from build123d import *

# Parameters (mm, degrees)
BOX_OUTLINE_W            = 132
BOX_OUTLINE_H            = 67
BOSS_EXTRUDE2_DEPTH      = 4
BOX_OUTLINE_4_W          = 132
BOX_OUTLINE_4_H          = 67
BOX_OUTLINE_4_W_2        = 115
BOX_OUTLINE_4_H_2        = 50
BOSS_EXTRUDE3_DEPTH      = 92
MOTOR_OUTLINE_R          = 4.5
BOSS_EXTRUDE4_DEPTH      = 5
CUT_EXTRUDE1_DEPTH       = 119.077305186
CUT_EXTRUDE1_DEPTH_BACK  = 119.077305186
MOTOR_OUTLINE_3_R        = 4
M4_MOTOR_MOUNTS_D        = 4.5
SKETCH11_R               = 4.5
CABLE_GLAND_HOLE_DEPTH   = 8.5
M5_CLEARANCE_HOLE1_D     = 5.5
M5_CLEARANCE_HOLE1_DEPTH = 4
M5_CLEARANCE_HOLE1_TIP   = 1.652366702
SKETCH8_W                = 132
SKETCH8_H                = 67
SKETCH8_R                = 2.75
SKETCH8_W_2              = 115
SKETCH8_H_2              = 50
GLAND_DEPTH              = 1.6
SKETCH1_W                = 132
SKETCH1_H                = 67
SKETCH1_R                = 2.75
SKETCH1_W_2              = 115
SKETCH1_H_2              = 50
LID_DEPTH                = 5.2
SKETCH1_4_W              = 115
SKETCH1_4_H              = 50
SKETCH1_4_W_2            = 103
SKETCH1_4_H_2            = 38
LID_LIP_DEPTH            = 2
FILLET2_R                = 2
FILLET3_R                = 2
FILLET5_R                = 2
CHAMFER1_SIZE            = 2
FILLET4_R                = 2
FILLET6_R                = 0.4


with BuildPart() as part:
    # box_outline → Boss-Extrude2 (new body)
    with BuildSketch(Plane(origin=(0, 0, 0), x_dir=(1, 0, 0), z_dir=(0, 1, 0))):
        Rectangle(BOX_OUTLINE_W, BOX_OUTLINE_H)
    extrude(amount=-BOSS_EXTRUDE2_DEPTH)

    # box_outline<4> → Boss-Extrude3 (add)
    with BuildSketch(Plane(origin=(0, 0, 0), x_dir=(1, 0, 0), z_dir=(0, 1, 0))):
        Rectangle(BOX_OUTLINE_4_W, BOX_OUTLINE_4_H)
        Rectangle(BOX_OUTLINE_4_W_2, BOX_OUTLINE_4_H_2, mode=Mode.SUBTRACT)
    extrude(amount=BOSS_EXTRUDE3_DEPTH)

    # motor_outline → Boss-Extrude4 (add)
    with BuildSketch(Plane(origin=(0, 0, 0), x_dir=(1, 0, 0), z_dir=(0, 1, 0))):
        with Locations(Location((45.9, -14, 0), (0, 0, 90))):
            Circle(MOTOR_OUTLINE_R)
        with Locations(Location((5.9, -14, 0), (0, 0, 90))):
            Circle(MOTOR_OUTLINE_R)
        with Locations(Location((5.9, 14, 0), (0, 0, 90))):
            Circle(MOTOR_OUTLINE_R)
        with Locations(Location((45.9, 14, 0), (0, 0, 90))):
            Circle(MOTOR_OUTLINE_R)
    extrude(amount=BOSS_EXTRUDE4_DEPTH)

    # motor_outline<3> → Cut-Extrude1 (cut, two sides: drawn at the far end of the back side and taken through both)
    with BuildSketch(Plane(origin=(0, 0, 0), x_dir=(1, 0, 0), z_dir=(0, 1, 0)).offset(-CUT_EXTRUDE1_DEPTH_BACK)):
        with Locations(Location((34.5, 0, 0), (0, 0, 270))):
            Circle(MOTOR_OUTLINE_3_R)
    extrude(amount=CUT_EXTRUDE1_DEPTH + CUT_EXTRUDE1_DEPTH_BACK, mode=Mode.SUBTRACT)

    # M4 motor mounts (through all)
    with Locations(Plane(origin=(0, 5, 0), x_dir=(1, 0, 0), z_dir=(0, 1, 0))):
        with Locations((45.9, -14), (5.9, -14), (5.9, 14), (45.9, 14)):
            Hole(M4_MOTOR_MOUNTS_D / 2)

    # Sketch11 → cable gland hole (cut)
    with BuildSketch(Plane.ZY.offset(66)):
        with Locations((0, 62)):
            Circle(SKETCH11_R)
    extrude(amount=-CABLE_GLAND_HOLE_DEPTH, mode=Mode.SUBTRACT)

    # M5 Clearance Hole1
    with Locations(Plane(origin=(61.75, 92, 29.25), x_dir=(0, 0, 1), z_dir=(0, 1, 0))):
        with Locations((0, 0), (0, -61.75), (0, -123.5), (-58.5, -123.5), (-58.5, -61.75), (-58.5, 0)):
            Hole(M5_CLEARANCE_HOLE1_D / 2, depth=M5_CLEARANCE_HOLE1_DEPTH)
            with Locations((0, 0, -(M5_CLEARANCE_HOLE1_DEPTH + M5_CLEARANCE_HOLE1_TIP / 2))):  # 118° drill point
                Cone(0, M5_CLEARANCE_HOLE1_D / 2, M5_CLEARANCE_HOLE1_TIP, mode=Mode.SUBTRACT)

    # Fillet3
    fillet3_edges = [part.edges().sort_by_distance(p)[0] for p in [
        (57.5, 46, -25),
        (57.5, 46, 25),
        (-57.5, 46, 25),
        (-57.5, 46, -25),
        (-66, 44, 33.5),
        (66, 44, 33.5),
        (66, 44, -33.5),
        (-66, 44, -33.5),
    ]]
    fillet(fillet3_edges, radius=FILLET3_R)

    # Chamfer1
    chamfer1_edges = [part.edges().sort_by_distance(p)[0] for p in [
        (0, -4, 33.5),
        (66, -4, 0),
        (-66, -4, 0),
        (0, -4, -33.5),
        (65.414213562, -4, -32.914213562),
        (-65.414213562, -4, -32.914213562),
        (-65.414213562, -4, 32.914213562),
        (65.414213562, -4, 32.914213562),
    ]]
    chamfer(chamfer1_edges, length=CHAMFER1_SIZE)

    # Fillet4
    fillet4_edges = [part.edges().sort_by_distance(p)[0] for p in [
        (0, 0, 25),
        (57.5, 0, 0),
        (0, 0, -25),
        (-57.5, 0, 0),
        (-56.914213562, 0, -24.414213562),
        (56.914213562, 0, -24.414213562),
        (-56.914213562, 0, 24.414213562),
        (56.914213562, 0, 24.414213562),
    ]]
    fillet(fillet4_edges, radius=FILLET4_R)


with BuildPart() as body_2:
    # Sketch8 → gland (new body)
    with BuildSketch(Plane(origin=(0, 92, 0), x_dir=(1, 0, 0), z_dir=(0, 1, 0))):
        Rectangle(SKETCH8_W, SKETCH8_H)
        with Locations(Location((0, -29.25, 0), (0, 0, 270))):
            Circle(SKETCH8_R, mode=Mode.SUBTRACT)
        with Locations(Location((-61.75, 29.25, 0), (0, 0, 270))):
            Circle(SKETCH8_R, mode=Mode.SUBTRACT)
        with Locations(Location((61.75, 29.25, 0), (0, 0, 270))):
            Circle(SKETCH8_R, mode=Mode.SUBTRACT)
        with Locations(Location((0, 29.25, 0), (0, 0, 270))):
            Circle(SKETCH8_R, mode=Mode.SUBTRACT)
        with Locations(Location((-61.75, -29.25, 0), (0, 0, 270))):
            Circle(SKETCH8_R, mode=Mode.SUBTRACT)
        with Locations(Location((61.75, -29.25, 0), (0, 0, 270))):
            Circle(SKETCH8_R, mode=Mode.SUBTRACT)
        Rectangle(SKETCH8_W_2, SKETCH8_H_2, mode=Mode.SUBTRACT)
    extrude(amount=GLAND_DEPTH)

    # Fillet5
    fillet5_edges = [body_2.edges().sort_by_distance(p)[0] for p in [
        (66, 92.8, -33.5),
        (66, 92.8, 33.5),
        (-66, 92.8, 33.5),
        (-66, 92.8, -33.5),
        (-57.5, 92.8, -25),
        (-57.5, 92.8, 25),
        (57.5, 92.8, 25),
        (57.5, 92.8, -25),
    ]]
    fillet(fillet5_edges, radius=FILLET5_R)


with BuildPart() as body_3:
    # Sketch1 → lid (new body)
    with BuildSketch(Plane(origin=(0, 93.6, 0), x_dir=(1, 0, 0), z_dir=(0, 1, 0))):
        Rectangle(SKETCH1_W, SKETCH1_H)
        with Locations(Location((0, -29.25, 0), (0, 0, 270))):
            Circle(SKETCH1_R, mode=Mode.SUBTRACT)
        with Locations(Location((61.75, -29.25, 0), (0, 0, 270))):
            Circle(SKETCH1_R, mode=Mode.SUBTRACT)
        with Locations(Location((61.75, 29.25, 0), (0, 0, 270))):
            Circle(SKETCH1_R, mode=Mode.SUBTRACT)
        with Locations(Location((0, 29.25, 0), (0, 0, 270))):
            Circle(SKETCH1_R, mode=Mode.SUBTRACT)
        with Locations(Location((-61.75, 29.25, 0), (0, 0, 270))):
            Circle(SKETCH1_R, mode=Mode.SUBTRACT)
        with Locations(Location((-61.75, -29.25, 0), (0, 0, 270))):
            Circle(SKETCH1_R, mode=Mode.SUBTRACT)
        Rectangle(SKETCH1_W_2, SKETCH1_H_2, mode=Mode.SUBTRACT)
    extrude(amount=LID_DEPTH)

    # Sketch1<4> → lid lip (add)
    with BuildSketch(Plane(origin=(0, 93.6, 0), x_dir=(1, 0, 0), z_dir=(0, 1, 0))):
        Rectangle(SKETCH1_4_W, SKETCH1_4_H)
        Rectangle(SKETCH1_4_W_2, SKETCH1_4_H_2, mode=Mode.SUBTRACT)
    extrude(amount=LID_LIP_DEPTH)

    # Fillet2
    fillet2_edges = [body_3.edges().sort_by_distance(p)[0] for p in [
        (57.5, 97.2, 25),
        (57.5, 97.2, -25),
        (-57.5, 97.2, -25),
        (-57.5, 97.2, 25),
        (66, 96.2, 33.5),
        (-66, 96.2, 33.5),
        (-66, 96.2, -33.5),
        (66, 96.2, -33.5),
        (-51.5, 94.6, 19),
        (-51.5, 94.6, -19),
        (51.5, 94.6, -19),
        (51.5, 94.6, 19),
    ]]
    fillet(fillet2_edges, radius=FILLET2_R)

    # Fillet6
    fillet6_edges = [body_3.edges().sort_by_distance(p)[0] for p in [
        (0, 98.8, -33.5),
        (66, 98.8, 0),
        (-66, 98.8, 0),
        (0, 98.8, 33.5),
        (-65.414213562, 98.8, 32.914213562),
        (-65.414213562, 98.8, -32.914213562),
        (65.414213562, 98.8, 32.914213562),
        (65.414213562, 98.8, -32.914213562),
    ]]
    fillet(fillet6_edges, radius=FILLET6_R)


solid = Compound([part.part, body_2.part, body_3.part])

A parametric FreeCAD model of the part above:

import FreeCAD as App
import Part
import Sketcher
Q = App.Units.Quantity


def edges_at(feature, points):
    """Names of the edges that pass closest to the given points."""
    edges = feature.Shape.Edges
    near = lambda p: min(range(len(edges)), key=lambda i: edges[i].distToShape(Part.Vertex(*p))[0])
    return sorted({f"Edge{near(p) + 1}" for p in points})

doc = App.newDocument("Part")
body = doc.addObject("PartDesign::Body", "Body")

sketch1 = doc.addObject("Sketcher::SketchObject", "Sketch")
body.addObject(sketch1)
sketch1.AttachmentSupport = (doc.XZ_Plane, [""])
sketch1.MapMode = "FlatFace"
sketch1.addGeometry(Part.LineSegment(App.Vector(-66, -34, 0), App.Vector(-66, 34, 0)), False)
sketch1.addGeometry(Part.LineSegment(App.Vector(-66, 34, 0), App.Vector(66, 34, 0)), False)
sketch1.addGeometry(Part.LineSegment(App.Vector(66, 34, 0), App.Vector(66, -34, 0)), False)
sketch1.addGeometry(Part.LineSegment(App.Vector(66, -34, 0), App.Vector(-66, -34, 0)), False)
sketch1.addConstraint(Sketcher.Constraint("Coincident", 0, 2, 1, 1))
sketch1.addConstraint(Sketcher.Constraint("Coincident", 1, 2, 2, 1))
sketch1.addConstraint(Sketcher.Constraint("Coincident", 2, 2, 3, 1))
sketch1.addConstraint(Sketcher.Constraint("Coincident", 3, 2, 0, 1))
sketch1.addConstraint(Sketcher.Constraint("Vertical", 0))
sketch1.addConstraint(Sketcher.Constraint("Horizontal", 1))
sketch1.addConstraint(Sketcher.Constraint("Vertical", 2))
sketch1.addConstraint(Sketcher.Constraint("Horizontal", 3))
sketch1.addConstraint(Sketcher.Constraint("Symmetric", 0, 2, 2, 2, -1, 1))
sketch1.addConstraint(Sketcher.Constraint("DistanceX", 1, 1, 1, 2, Q("132 mm")))
sketch1.addConstraint(Sketcher.Constraint("DistanceY", 0, 1, 0, 2, Q("67 mm")))
pad1 = doc.addObject("PartDesign::Pad", "Pad")
body.addObject(pad1)
pad1.Profile = sketch1
pad1.Length = 4

sketch2 = doc.addObject("Sketcher::SketchObject", "Sketch001")
body.addObject(sketch2)
sketch2.AttachmentSupport = (doc.XZ_Plane, [""])
sketch2.MapMode = "FlatFace"
sketch2.addGeometry(Part.LineSegment(App.Vector(-66, -34, 0), App.Vector(-66, 34, 0)), False)
sketch2.addGeometry(Part.LineSegment(App.Vector(-66, 34, 0), App.Vector(66, 34, 0)), False)
sketch2.addGeometry(Part.LineSegment(App.Vector(66, 34, 0), App.Vector(66, -34, 0)), False)
sketch2.addGeometry(Part.LineSegment(App.Vector(66, -34, 0), App.Vector(-66, -34, 0)), False)
sketch2.addGeometry(Part.LineSegment(App.Vector(58, 25, 0), App.Vector(-58, 25, 0)), False)
sketch2.addGeometry(Part.LineSegment(App.Vector(-58, 25, 0), App.Vector(-58, -25, 0)), False)
sketch2.addGeometry(Part.LineSegment(App.Vector(-58, -25, 0), App.Vector(58, -25, 0)), False)
sketch2.addGeometry(Part.LineSegment(App.Vector(58, -25, 0), App.Vector(58, 25, 0)), False)
sketch2.addConstraint(Sketcher.Constraint("Coincident", 0, 2, 1, 1))
sketch2.addConstraint(Sketcher.Constraint("Coincident", 1, 2, 2, 1))
sketch2.addConstraint(Sketcher.Constraint("Coincident", 2, 2, 3, 1))
sketch2.addConstraint(Sketcher.Constraint("Coincident", 3, 2, 0, 1))
sketch2.addConstraint(Sketcher.Constraint("Coincident", 4, 2, 5, 1))
sketch2.addConstraint(Sketcher.Constraint("Coincident", 5, 2, 6, 1))
sketch2.addConstraint(Sketcher.Constraint("Coincident", 6, 2, 7, 1))
sketch2.addConstraint(Sketcher.Constraint("Coincident", 7, 2, 4, 1))
sketch2.addConstraint(Sketcher.Constraint("Vertical", 0))
sketch2.addConstraint(Sketcher.Constraint("Horizontal", 1))
sketch2.addConstraint(Sketcher.Constraint("Vertical", 2))
sketch2.addConstraint(Sketcher.Constraint("Horizontal", 3))
sketch2.addConstraint(Sketcher.Constraint("Horizontal", 4))
sketch2.addConstraint(Sketcher.Constraint("Vertical", 5))
sketch2.addConstraint(Sketcher.Constraint("Horizontal", 6))
sketch2.addConstraint(Sketcher.Constraint("Vertical", 7))
sketch2.addConstraint(Sketcher.Constraint("Symmetric", 0, 2, 2, 2, -1, 1))
sketch2.addConstraint(Sketcher.Constraint("Symmetric", 4, 2, 6, 2, -1, 1))
sketch2.addConstraint(Sketcher.Constraint("DistanceX", 1, 1, 1, 2, Q("132 mm")))
sketch2.addConstraint(Sketcher.Constraint("DistanceX", 4, 2, 4, 1, Q("115 mm")))
sketch2.addConstraint(Sketcher.Constraint("DistanceY", 0, 1, 0, 2, Q("67 mm")))
sketch2.addConstraint(Sketcher.Constraint("DistanceY", 5, 2, 5, 1, Q("50 mm")))
pad2 = doc.addObject("PartDesign::Pad", "Pad001")
body.addObject(pad2)
pad2.Profile = sketch2
pad2.Length = 92
pad2.Reversed = True

sketch3 = doc.addObject("Sketcher::SketchObject", "Sketch002")
body.addObject(sketch3)
sketch3.AttachmentSupport = (doc.XZ_Plane, [""])
sketch3.MapMode = "FlatFace"
sketch3.addGeometry(Part.Circle(App.Vector(45.9, 14, 0), App.Vector(0, 0, 1), 4.5), False)
sketch3.addGeometry(Part.Circle(App.Vector(5.9, 14, 0), App.Vector(0, 0, 1), 4.5), False)
sketch3.addGeometry(Part.Circle(App.Vector(5.9, -14, 0), App.Vector(0, 0, 1), 4.5), False)
sketch3.addGeometry(Part.Circle(App.Vector(45.9, -14, 0), App.Vector(0, 0, 1), 4.5), False)
sketch3.addConstraint(Sketcher.Constraint("Equal", 0, 1))
sketch3.addConstraint(Sketcher.Constraint("Equal", 1, 2))
sketch3.addConstraint(Sketcher.Constraint("Equal", 2, 3))
sketch3.addConstraint(Sketcher.Constraint("Symmetric", 1, 3, 2, 3, -1))
sketch3.addConstraint(Sketcher.Constraint("Symmetric", 0, 3, 3, 3, -1))
sketch3.addConstraint(Sketcher.Constraint("Horizontal", 0, 3, 1, 3))
sketch3.addConstraint(Sketcher.Constraint("Diameter", 0, Q("9 mm")))
sketch3.addConstraint(Sketcher.Constraint("DistanceY", -1, 1, 0, 3, Q("14 mm")))
sketch3.addConstraint(Sketcher.Constraint("DistanceX", 1, 3, 0, 3, Q("40 mm")))
sketch3.addConstraint(Sketcher.Constraint("DistanceX", -1, 1, 0, 3, Q("45.9 mm")))
pad3 = doc.addObject("PartDesign::Pad", "Pad002")
body.addObject(pad3)
pad3.Profile = sketch3
pad3.Length = 5
pad3.Reversed = True

sketch4 = doc.addObject("Sketcher::SketchObject", "Sketch003")
body.addObject(sketch4)
sketch4.AttachmentSupport = (doc.XZ_Plane, [""])
sketch4.MapMode = "FlatFace"
sketch4.addGeometry(Part.Circle(App.Vector(34.5, 0, 0), App.Vector(0, 0, 1), 4), False)
sketch4.addConstraint(Sketcher.Constraint("PointOnObject", 0, 3, -1))
sketch4.addConstraint(Sketcher.Constraint("Diameter", 0, Q("8 mm")))
sketch4.addConstraint(Sketcher.Constraint("DistanceX", -1, 1, 0, 3, Q("34.5 mm")))
pocket1 = doc.addObject("PartDesign::Pocket", "Pocket")
body.addObject(pocket1)
pocket1.Profile = sketch4
pocket1.Type = "ThroughAll"
pocket1.Midplane = True

sketch5 = doc.addObject("Sketcher::SketchObject", "Sketch004")
body.addObject(sketch5)
sketch5.AttachmentSupport = (doc.XZ_Plane, [""])
sketch5.MapMode = "FlatFace"
sketch5.AttachmentOffset = App.Placement(App.Vector(0, 0, -5), App.Rotation())
sketch5.addGeometry(Part.Circle(App.Vector(45.9, 14, 0), App.Vector(0, 0, 1), 2.2), False)
sketch5.addGeometry(Part.Circle(App.Vector(5.9, 14, 0), App.Vector(0, 0, 1), 2.2), False)
sketch5.addGeometry(Part.Circle(App.Vector(5.9, -14, 0), App.Vector(0, 0, 1), 2.2), False)
sketch5.addGeometry(Part.Circle(App.Vector(45.9, -14, 0), App.Vector(0, 0, 1), 2.2), False)
sketch5.addConstraint(Sketcher.Constraint("Equal", 0, 1))
sketch5.addConstraint(Sketcher.Constraint("Equal", 1, 2))
sketch5.addConstraint(Sketcher.Constraint("Equal", 2, 3))
sketch5.addConstraint(Sketcher.Constraint("Symmetric", 1, 3, 2, 3, -1))
sketch5.addConstraint(Sketcher.Constraint("Symmetric", 0, 3, 3, 3, -1))
sketch5.addConstraint(Sketcher.Constraint("Horizontal", 0, 3, 1, 3))
sketch5.addConstraint(Sketcher.Constraint("Diameter", 0, Q("4.5 mm")))
sketch5.addConstraint(Sketcher.Constraint("DistanceY", -1, 1, 0, 3, Q("14 mm")))
sketch5.addConstraint(Sketcher.Constraint("DistanceX", 1, 3, 0, 3, Q("40 mm")))
sketch5.addConstraint(Sketcher.Constraint("DistanceX", -1, 1, 0, 3, Q("45.9 mm")))
doc.recompute()
hole = doc.addObject("PartDesign::Hole", "Hole")
body.addObject(hole)
hole.Profile = sketch5
hole.ThreadType = "None"
hole.Diameter = 4.5
hole.DepthType = "ThroughAll"
hole.Reversed = True

sketch6 = doc.addObject("Sketcher::SketchObject", "Sketch005")
body.addObject(sketch6)
sketch6.AttachmentSupport = (doc.YZ_Plane, [""])
sketch6.MapMode = "FlatFace"
sketch6.AttachmentOffset = App.Placement(App.Vector(0, 0, -66), App.Rotation())
sketch6.addGeometry(Part.Circle(App.Vector(62, 0, 0), App.Vector(0, 0, 1), 4.5), False)
sketch6.addConstraint(Sketcher.Constraint("PointOnObject", 0, 3, -1))
sketch6.addConstraint(Sketcher.Constraint("Diameter", 0, Q("9 mm")))
sketch6.addConstraint(Sketcher.Constraint("DistanceX", -1, 1, 0, 3, Q("62 mm")))
pocket2 = doc.addObject("PartDesign::Pocket", "Pocket001")
body.addObject(pocket2)
pocket2.Profile = sketch6
pocket2.Length = 8.5
pocket2.Reversed = True

sketch7 = doc.addObject("Sketcher::SketchObject", "Sketch006")
body.addObject(sketch7)
sketch7.AttachmentSupport = (doc.XZ_Plane, [""])
sketch7.MapMode = "FlatFace"
sketch7.AttachmentOffset = App.Placement(App.Vector(0, 0, -92), App.Rotation())
sketch7.addGeometry(Part.Circle(App.Vector(61.8, 29.2, 0), App.Vector(0, 0, 1), 2.8), False)
sketch7.addGeometry(Part.Circle(App.Vector(0, 29.2, 0), App.Vector(0, 0, 1), 2.8), False)
sketch7.addGeometry(Part.Circle(App.Vector(-61.8, 29.2, 0), App.Vector(0, 0, 1), 2.8), False)
sketch7.addGeometry(Part.Circle(App.Vector(-61.8, -29.2, 0), App.Vector(0, 0, 1), 2.8), False)
sketch7.addGeometry(Part.Circle(App.Vector(0, -29.2, 0), App.Vector(0, 0, 1), 2.8), False)
sketch7.addGeometry(Part.Circle(App.Vector(61.8, -29.2, 0), App.Vector(0, 0, 1), 2.8), False)
sketch7.addConstraint(Sketcher.Constraint("Equal", 0, 1))
sketch7.addConstraint(Sketcher.Constraint("Equal", 1, 2))
sketch7.addConstraint(Sketcher.Constraint("Equal", 2, 3))
sketch7.addConstraint(Sketcher.Constraint("Equal", 3, 4))
sketch7.addConstraint(Sketcher.Constraint("Equal", 4, 5))
sketch7.addConstraint(Sketcher.Constraint("Symmetric", 0, 3, 3, 3, -1, 1))
sketch7.addConstraint(Sketcher.Constraint("Symmetric", 1, 3, 4, 3, -1, 1))
sketch7.addConstraint(Sketcher.Constraint("Symmetric", 2, 3, 5, 3, -1, 1))
sketch7.addConstraint(Sketcher.Constraint("Symmetric", 0, 3, 2, 3, -2))
sketch7.addConstraint(Sketcher.Constraint("PointOnObject", 1, 3, -2))
sketch7.addConstraint(Sketcher.Constraint("Horizontal", 0, 3, 1, 3))
sketch7.addConstraint(Sketcher.Constraint("Diameter", 0, Q("5.5 mm")))
sketch7.addConstraint(Sketcher.Constraint("DistanceX", 2, 3, 0, 3, Q("123.5 mm")))
sketch7.addConstraint(Sketcher.Constraint("DistanceY", 3, 3, 2, 3, Q("58.5 mm")))
doc.recompute()
hole2 = doc.addObject("PartDesign::Hole", "Hole001")
body.addObject(hole2)
hole2.Profile = sketch7
hole2.ThreadType = "None"
hole2.Diameter = 5.5
hole2.DepthType = "Dimension"
hole2.Depth = 4
hole2.DrillPoint = "Angled"
hole2.DrillPointAngle = 118
hole2.Reversed = True
doc.recompute()

fillet = doc.addObject("PartDesign::Fillet", "Fillet")
body.addObject(fillet)
fillet.Base = (hole2, edges_at(hole2, [
    (57.5, 46, -25),
    (57.5, 46, 25),
    (-57.5, 46, 25),
    (-57.5, 46, -25),
    (-66, 44, 33.5),
    (66, 44, 33.5),
    (66, 44, -33.5),
    (-66, 44, -33.5),
]))
fillet.Radius = 2
doc.recompute()

chamfer = doc.addObject("PartDesign::Chamfer", "Chamfer")
body.addObject(chamfer)
chamfer.Base = (fillet, edges_at(fillet, [
    (0, -4, 33.5),
    (66, -4, 0),
    (-66, -4, 0),
    (0, -4, -33.5),
    (65.414, -4, -32.914),
    (-65.414, -4, -32.914),
    (-65.414, -4, 32.914),
    (65.414, -4, 32.914),
]))
chamfer.Size = 2
doc.recompute()

fillet2 = doc.addObject("PartDesign::Fillet", "Fillet001")
body.addObject(fillet2)
fillet2.Base = (chamfer, edges_at(chamfer, [
    (0, 0, 25),
    (57.5, 0, 0),
    (0, 0, -25),
    (-57.5, 0, 0),
    (-56.914, 0, -24.414),
    (56.914, 0, -24.414),
    (-56.914, 0, 24.414),
    (56.914, 0, 24.414),
]))
fillet2.Radius = 2
body2 = doc.addObject("PartDesign::Body", "Body001")

sketch8 = doc.addObject("Sketcher::SketchObject", "Sketch007")
body2.addObject(sketch8)
sketch8.AttachmentSupport = (doc.getObject("XZ_Plane001"), [""])
sketch8.MapMode = "FlatFace"
sketch8.AttachmentOffset = App.Placement(App.Vector(0, 0, -92), App.Rotation())
sketch8.addGeometry(Part.LineSegment(App.Vector(-66, -33.5, 0), App.Vector(-66, 33.5, 0)), False)
sketch8.addGeometry(Part.LineSegment(App.Vector(-66, 33.5, 0), App.Vector(66, 33.5, 0)), False)
sketch8.addGeometry(Part.LineSegment(App.Vector(66, 33.5, 0), App.Vector(66, -33.5, 0)), False)
sketch8.addGeometry(Part.LineSegment(App.Vector(66, -33.5, 0), App.Vector(-66, -33.5, 0)), False)
sketch8.addGeometry(Part.Circle(App.Vector(-61.8, 29.2, 0), App.Vector(0, 0, 1), 2.8), False)
sketch8.addGeometry(Part.Circle(App.Vector(0, 29.2, 0), App.Vector(0, 0, 1), 2.8), False)
sketch8.addGeometry(Part.Circle(App.Vector(61.8, 29.2, 0), App.Vector(0, 0, 1), 2.8), False)
sketch8.addGeometry(Part.Circle(App.Vector(-61.8, -29.2, 0), App.Vector(0, 0, 1), 2.8), False)
sketch8.addGeometry(Part.LineSegment(App.Vector(57.5, 25, 0), App.Vector(-57.5, 25, 0)), False)
sketch8.addGeometry(Part.LineSegment(App.Vector(-57.5, 25, 0), App.Vector(-57.5, -25, 0)), False)
sketch8.addGeometry(Part.LineSegment(App.Vector(-57.5, -25, 0), App.Vector(57.5, -25, 0)), False)
sketch8.addGeometry(Part.LineSegment(App.Vector(57.5, -25, 0), App.Vector(57.5, 25, 0)), False)
sketch8.addGeometry(Part.Circle(App.Vector(0, -29.2, 0), App.Vector(0, 0, 1), 2.8), False)
sketch8.addGeometry(Part.Circle(App.Vector(61.8, -29.2, 0), App.Vector(0, 0, 1), 2.8), False)
sketch8.addConstraint(Sketcher.Constraint("Coincident", 0, 2, 1, 1))
sketch8.addConstraint(Sketcher.Constraint("Coincident", 1, 2, 2, 1))
sketch8.addConstraint(Sketcher.Constraint("Coincident", 2, 2, 3, 1))
sketch8.addConstraint(Sketcher.Constraint("Coincident", 3, 2, 0, 1))
sketch8.addConstraint(Sketcher.Constraint("Coincident", 8, 2, 9, 1))
sketch8.addConstraint(Sketcher.Constraint("Coincident", 9, 2, 10, 1))
sketch8.addConstraint(Sketcher.Constraint("Coincident", 10, 2, 11, 1))
sketch8.addConstraint(Sketcher.Constraint("Coincident", 11, 2, 8, 1))
sketch8.addConstraint(Sketcher.Constraint("Vertical", 0))
sketch8.addConstraint(Sketcher.Constraint("Horizontal", 1))
sketch8.addConstraint(Sketcher.Constraint("Vertical", 2))
sketch8.addConstraint(Sketcher.Constraint("Horizontal", 3))
sketch8.addConstraint(Sketcher.Constraint("Horizontal", 8))
sketch8.addConstraint(Sketcher.Constraint("Vertical", 9))
sketch8.addConstraint(Sketcher.Constraint("Horizontal", 10))
sketch8.addConstraint(Sketcher.Constraint("Vertical", 11))
sketch8.addConstraint(Sketcher.Constraint("Equal", 4, 5))
sketch8.addConstraint(Sketcher.Constraint("Equal", 5, 6))
sketch8.addConstraint(Sketcher.Constraint("Equal", 6, 7))
sketch8.addConstraint(Sketcher.Constraint("Equal", 7, 12))
sketch8.addConstraint(Sketcher.Constraint("Equal", 12, 13))
sketch8.addConstraint(Sketcher.Constraint("Symmetric", 6, 3, 7, 3, -1, 1))
sketch8.addConstraint(Sketcher.Constraint("Symmetric", 5, 3, 12, 3, -1, 1))
sketch8.addConstraint(Sketcher.Constraint("Symmetric", 4, 3, 13, 3, -1, 1))
sketch8.addConstraint(Sketcher.Constraint("Symmetric", 0, 2, 2, 2, -1, 1))
sketch8.addConstraint(Sketcher.Constraint("Symmetric", 8, 2, 10, 2, -1, 1))
sketch8.addConstraint(Sketcher.Constraint("Symmetric", 4, 3, 6, 3, -2))
sketch8.addConstraint(Sketcher.Constraint("PointOnObject", 5, 3, -2))
sketch8.addConstraint(Sketcher.Constraint("Horizontal", 4, 3, 5, 3))
sketch8.addConstraint(Sketcher.Constraint("Diameter", 4, Q("5.5 mm")))
sketch8.addConstraint(Sketcher.Constraint("DistanceX", 1, 1, 1, 2, Q("132 mm")))
sketch8.addConstraint(Sketcher.Constraint("DistanceX", 8, 2, 8, 1, Q("115 mm")))
sketch8.addConstraint(Sketcher.Constraint("DistanceY", 0, 1, 0, 2, Q("67 mm")))
sketch8.addConstraint(Sketcher.Constraint("DistanceY", 9, 2, 9, 1, Q("50 mm")))
sketch8.addConstraint(Sketcher.Constraint("DistanceX", 4, 3, 6, 3, Q("123.5 mm")))
sketch8.addConstraint(Sketcher.Constraint("DistanceY", 7, 3, 4, 3, Q("58.5 mm")))
pad4 = doc.addObject("PartDesign::Pad", "Pad003")
body2.addObject(pad4)
pad4.Profile = sketch8
pad4.Length = 1.6
pad4.Reversed = True
doc.recompute()

fillet3 = doc.addObject("PartDesign::Fillet", "Fillet002")
body2.addObject(fillet3)
fillet3.Base = (pad4, edges_at(pad4, [
    (66, 92.8, -33.5),
    (66, 92.8, 33.5),
    (-66, 92.8, 33.5),
    (-66, 92.8, -33.5),
    (-57.5, 92.8, -25),
    (-57.5, 92.8, 25),
    (57.5, 92.8, 25),
    (57.5, 92.8, -25),
]))
fillet3.Radius = 2
body3 = doc.addObject("PartDesign::Body", "Body002")

sketch9 = doc.addObject("Sketcher::SketchObject", "Sketch008")
body3.addObject(sketch9)
sketch9.AttachmentSupport = (doc.getObject("XZ_Plane002"), [""])
sketch9.MapMode = "FlatFace"
sketch9.AttachmentOffset = App.Placement(App.Vector(0, 0, -93.6), App.Rotation())
sketch9.addGeometry(Part.LineSegment(App.Vector(-66, -33.5, 0), App.Vector(-66, 33.5, 0)), False)
sketch9.addGeometry(Part.LineSegment(App.Vector(-66, 33.5, 0), App.Vector(66, 33.5, 0)), False)
sketch9.addGeometry(Part.LineSegment(App.Vector(66, 33.5, 0), App.Vector(66, -33.5, 0)), False)
sketch9.addGeometry(Part.LineSegment(App.Vector(66, -33.5, 0), App.Vector(-66, -33.5, 0)), False)
sketch9.addGeometry(Part.Circle(App.Vector(-61.8, 29.2, 0), App.Vector(0, 0, 1), 2.8), False)
sketch9.addGeometry(Part.Circle(App.Vector(0, 29.2, 0), App.Vector(0, 0, 1), 2.8), False)
sketch9.addGeometry(Part.Circle(App.Vector(61.8, 29.2, 0), App.Vector(0, 0, 1), 2.8), False)
sketch9.addGeometry(Part.Circle(App.Vector(-61.8, -29.2, 0), App.Vector(0, 0, 1), 2.8), False)
sketch9.addGeometry(Part.LineSegment(App.Vector(57.5, 25, 0), App.Vector(-57.5, 25, 0)), False)
sketch9.addGeometry(Part.LineSegment(App.Vector(-57.5, 25, 0), App.Vector(-57.5, -25, 0)), False)
sketch9.addGeometry(Part.LineSegment(App.Vector(-57.5, -25, 0), App.Vector(57.5, -25, 0)), False)
sketch9.addGeometry(Part.LineSegment(App.Vector(57.5, -25, 0), App.Vector(57.5, 25, 0)), False)
sketch9.addGeometry(Part.Circle(App.Vector(0, -29.2, 0), App.Vector(0, 0, 1), 2.8), False)
sketch9.addGeometry(Part.Circle(App.Vector(61.8, -29.2, 0), App.Vector(0, 0, 1), 2.8), False)
sketch9.addConstraint(Sketcher.Constraint("Coincident", 0, 2, 1, 1))
sketch9.addConstraint(Sketcher.Constraint("Coincident", 1, 2, 2, 1))
sketch9.addConstraint(Sketcher.Constraint("Coincident", 2, 2, 3, 1))
sketch9.addConstraint(Sketcher.Constraint("Coincident", 3, 2, 0, 1))
sketch9.addConstraint(Sketcher.Constraint("Coincident", 8, 2, 9, 1))
sketch9.addConstraint(Sketcher.Constraint("Coincident", 9, 2, 10, 1))
sketch9.addConstraint(Sketcher.Constraint("Coincident", 10, 2, 11, 1))
sketch9.addConstraint(Sketcher.Constraint("Coincident", 11, 2, 8, 1))
sketch9.addConstraint(Sketcher.Constraint("Vertical", 0))
sketch9.addConstraint(Sketcher.Constraint("Horizontal", 1))
sketch9.addConstraint(Sketcher.Constraint("Vertical", 2))
sketch9.addConstraint(Sketcher.Constraint("Horizontal", 3))
sketch9.addConstraint(Sketcher.Constraint("Horizontal", 8))
sketch9.addConstraint(Sketcher.Constraint("Vertical", 9))
sketch9.addConstraint(Sketcher.Constraint("Horizontal", 10))
sketch9.addConstraint(Sketcher.Constraint("Vertical", 11))
sketch9.addConstraint(Sketcher.Constraint("Equal", 4, 5))
sketch9.addConstraint(Sketcher.Constraint("Equal", 5, 6))
sketch9.addConstraint(Sketcher.Constraint("Equal", 6, 7))
sketch9.addConstraint(Sketcher.Constraint("Equal", 7, 12))
sketch9.addConstraint(Sketcher.Constraint("Equal", 12, 13))
sketch9.addConstraint(Sketcher.Constraint("Symmetric", 6, 3, 7, 3, -1, 1))
sketch9.addConstraint(Sketcher.Constraint("Symmetric", 5, 3, 12, 3, -1, 1))
sketch9.addConstraint(Sketcher.Constraint("Symmetric", 4, 3, 13, 3, -1, 1))
sketch9.addConstraint(Sketcher.Constraint("Symmetric", 0, 2, 2, 2, -1, 1))
sketch9.addConstraint(Sketcher.Constraint("Symmetric", 8, 2, 10, 2, -1, 1))
sketch9.addConstraint(Sketcher.Constraint("Symmetric", 4, 3, 6, 3, -2))
sketch9.addConstraint(Sketcher.Constraint("PointOnObject", 5, 3, -2))
sketch9.addConstraint(Sketcher.Constraint("Horizontal", 4, 3, 5, 3))
sketch9.addConstraint(Sketcher.Constraint("Diameter", 4, Q("5.5 mm")))
sketch9.addConstraint(Sketcher.Constraint("DistanceX", 1, 1, 1, 2, Q("132 mm")))
sketch9.addConstraint(Sketcher.Constraint("DistanceX", 8, 2, 8, 1, Q("115 mm")))
sketch9.addConstraint(Sketcher.Constraint("DistanceY", 0, 1, 0, 2, Q("67 mm")))
sketch9.addConstraint(Sketcher.Constraint("DistanceY", 9, 2, 9, 1, Q("50 mm")))
sketch9.addConstraint(Sketcher.Constraint("DistanceX", 4, 3, 6, 3, Q("123.5 mm")))
sketch9.addConstraint(Sketcher.Constraint("DistanceY", 7, 3, 4, 3, Q("58.5 mm")))
pad5 = doc.addObject("PartDesign::Pad", "Pad004")
body3.addObject(pad5)
pad5.Profile = sketch9
pad5.Length = 5.2
pad5.Reversed = True

sketch10 = doc.addObject("Sketcher::SketchObject", "Sketch009")
body3.addObject(sketch10)
sketch10.AttachmentSupport = (doc.getObject("XZ_Plane002"), [""])
sketch10.MapMode = "FlatFace"
sketch10.AttachmentOffset = App.Placement(App.Vector(0, 0, -93.6), App.Rotation())
sketch10.addGeometry(Part.LineSegment(App.Vector(-58, -25, 0), App.Vector(-58, 25, 0)), False)
sketch10.addGeometry(Part.LineSegment(App.Vector(-58, 25, 0), App.Vector(58, 25, 0)), False)
sketch10.addGeometry(Part.LineSegment(App.Vector(58, 25, 0), App.Vector(58, -25, 0)), False)
sketch10.addGeometry(Part.LineSegment(App.Vector(58, -25, 0), App.Vector(-58, -25, 0)), False)
sketch10.addGeometry(Part.LineSegment(App.Vector(52, 19, 0), App.Vector(-52, 19, 0)), False)
sketch10.addGeometry(Part.LineSegment(App.Vector(-52, 19, 0), App.Vector(-52, -19, 0)), False)
sketch10.addGeometry(Part.LineSegment(App.Vector(-52, -19, 0), App.Vector(52, -19, 0)), False)
sketch10.addGeometry(Part.LineSegment(App.Vector(52, -19, 0), App.Vector(52, 19, 0)), False)
sketch10.addConstraint(Sketcher.Constraint("Coincident", 0, 2, 1, 1))
sketch10.addConstraint(Sketcher.Constraint("Coincident", 1, 2, 2, 1))
sketch10.addConstraint(Sketcher.Constraint("Coincident", 2, 2, 3, 1))
sketch10.addConstraint(Sketcher.Constraint("Coincident", 3, 2, 0, 1))
sketch10.addConstraint(Sketcher.Constraint("Coincident", 4, 2, 5, 1))
sketch10.addConstraint(Sketcher.Constraint("Coincident", 5, 2, 6, 1))
sketch10.addConstraint(Sketcher.Constraint("Coincident", 6, 2, 7, 1))
sketch10.addConstraint(Sketcher.Constraint("Coincident", 7, 2, 4, 1))
sketch10.addConstraint(Sketcher.Constraint("Vertical", 0))
sketch10.addConstraint(Sketcher.Constraint("Horizontal", 1))
sketch10.addConstraint(Sketcher.Constraint("Vertical", 2))
sketch10.addConstraint(Sketcher.Constraint("Horizontal", 3))
sketch10.addConstraint(Sketcher.Constraint("Horizontal", 4))
sketch10.addConstraint(Sketcher.Constraint("Vertical", 5))
sketch10.addConstraint(Sketcher.Constraint("Horizontal", 6))
sketch10.addConstraint(Sketcher.Constraint("Vertical", 7))
sketch10.addConstraint(Sketcher.Constraint("Symmetric", 0, 2, 2, 2, -1, 1))
sketch10.addConstraint(Sketcher.Constraint("Symmetric", 4, 2, 6, 2, -1, 1))
sketch10.addConstraint(Sketcher.Constraint("DistanceX", 1, 1, 1, 2, Q("115 mm")))
sketch10.addConstraint(Sketcher.Constraint("DistanceX", 4, 2, 4, 1, Q("103 mm")))
sketch10.addConstraint(Sketcher.Constraint("DistanceY", 0, 1, 0, 2, Q("50 mm")))
sketch10.addConstraint(Sketcher.Constraint("DistanceY", 5, 2, 5, 1, Q("38 mm")))
pad6 = doc.addObject("PartDesign::Pad", "Pad005")
body3.addObject(pad6)
pad6.Profile = sketch10
pad6.Length = 2
pad6.Reversed = True
doc.recompute()

fillet4 = doc.addObject("PartDesign::Fillet", "Fillet003")
body3.addObject(fillet4)
fillet4.Base = (pad6, edges_at(pad6, [
    (57.5, 97.2, 25),
    (57.5, 97.2, -25),
    (-57.5, 97.2, -25),
    (-57.5, 97.2, 25),
    (66, 96.2, 33.5),
    (-66, 96.2, 33.5),
    (-66, 96.2, -33.5),
    (66, 96.2, -33.5),
    (-51.5, 94.6, 19),
    (-51.5, 94.6, -19),
    (51.5, 94.6, -19),
    (51.5, 94.6, 19),
]))
fillet4.Radius = 2
doc.recompute()

fillet5 = doc.addObject("PartDesign::Fillet", "Fillet004")
body3.addObject(fillet5)
fillet5.Base = (fillet4, edges_at(fillet4, [
    (0, 98.8, -33.5),
    (66, 98.8, 0),
    (-66, 98.8, 0),
    (0, 98.8, 33.5),
    (-65.414, 98.8, 32.914),
    (-65.414, 98.8, -32.914),
    (65.414, 98.8, 32.914),
    (65.414, 98.8, -32.914),
]))
fillet5.Radius = 0.4

doc.recompute()
